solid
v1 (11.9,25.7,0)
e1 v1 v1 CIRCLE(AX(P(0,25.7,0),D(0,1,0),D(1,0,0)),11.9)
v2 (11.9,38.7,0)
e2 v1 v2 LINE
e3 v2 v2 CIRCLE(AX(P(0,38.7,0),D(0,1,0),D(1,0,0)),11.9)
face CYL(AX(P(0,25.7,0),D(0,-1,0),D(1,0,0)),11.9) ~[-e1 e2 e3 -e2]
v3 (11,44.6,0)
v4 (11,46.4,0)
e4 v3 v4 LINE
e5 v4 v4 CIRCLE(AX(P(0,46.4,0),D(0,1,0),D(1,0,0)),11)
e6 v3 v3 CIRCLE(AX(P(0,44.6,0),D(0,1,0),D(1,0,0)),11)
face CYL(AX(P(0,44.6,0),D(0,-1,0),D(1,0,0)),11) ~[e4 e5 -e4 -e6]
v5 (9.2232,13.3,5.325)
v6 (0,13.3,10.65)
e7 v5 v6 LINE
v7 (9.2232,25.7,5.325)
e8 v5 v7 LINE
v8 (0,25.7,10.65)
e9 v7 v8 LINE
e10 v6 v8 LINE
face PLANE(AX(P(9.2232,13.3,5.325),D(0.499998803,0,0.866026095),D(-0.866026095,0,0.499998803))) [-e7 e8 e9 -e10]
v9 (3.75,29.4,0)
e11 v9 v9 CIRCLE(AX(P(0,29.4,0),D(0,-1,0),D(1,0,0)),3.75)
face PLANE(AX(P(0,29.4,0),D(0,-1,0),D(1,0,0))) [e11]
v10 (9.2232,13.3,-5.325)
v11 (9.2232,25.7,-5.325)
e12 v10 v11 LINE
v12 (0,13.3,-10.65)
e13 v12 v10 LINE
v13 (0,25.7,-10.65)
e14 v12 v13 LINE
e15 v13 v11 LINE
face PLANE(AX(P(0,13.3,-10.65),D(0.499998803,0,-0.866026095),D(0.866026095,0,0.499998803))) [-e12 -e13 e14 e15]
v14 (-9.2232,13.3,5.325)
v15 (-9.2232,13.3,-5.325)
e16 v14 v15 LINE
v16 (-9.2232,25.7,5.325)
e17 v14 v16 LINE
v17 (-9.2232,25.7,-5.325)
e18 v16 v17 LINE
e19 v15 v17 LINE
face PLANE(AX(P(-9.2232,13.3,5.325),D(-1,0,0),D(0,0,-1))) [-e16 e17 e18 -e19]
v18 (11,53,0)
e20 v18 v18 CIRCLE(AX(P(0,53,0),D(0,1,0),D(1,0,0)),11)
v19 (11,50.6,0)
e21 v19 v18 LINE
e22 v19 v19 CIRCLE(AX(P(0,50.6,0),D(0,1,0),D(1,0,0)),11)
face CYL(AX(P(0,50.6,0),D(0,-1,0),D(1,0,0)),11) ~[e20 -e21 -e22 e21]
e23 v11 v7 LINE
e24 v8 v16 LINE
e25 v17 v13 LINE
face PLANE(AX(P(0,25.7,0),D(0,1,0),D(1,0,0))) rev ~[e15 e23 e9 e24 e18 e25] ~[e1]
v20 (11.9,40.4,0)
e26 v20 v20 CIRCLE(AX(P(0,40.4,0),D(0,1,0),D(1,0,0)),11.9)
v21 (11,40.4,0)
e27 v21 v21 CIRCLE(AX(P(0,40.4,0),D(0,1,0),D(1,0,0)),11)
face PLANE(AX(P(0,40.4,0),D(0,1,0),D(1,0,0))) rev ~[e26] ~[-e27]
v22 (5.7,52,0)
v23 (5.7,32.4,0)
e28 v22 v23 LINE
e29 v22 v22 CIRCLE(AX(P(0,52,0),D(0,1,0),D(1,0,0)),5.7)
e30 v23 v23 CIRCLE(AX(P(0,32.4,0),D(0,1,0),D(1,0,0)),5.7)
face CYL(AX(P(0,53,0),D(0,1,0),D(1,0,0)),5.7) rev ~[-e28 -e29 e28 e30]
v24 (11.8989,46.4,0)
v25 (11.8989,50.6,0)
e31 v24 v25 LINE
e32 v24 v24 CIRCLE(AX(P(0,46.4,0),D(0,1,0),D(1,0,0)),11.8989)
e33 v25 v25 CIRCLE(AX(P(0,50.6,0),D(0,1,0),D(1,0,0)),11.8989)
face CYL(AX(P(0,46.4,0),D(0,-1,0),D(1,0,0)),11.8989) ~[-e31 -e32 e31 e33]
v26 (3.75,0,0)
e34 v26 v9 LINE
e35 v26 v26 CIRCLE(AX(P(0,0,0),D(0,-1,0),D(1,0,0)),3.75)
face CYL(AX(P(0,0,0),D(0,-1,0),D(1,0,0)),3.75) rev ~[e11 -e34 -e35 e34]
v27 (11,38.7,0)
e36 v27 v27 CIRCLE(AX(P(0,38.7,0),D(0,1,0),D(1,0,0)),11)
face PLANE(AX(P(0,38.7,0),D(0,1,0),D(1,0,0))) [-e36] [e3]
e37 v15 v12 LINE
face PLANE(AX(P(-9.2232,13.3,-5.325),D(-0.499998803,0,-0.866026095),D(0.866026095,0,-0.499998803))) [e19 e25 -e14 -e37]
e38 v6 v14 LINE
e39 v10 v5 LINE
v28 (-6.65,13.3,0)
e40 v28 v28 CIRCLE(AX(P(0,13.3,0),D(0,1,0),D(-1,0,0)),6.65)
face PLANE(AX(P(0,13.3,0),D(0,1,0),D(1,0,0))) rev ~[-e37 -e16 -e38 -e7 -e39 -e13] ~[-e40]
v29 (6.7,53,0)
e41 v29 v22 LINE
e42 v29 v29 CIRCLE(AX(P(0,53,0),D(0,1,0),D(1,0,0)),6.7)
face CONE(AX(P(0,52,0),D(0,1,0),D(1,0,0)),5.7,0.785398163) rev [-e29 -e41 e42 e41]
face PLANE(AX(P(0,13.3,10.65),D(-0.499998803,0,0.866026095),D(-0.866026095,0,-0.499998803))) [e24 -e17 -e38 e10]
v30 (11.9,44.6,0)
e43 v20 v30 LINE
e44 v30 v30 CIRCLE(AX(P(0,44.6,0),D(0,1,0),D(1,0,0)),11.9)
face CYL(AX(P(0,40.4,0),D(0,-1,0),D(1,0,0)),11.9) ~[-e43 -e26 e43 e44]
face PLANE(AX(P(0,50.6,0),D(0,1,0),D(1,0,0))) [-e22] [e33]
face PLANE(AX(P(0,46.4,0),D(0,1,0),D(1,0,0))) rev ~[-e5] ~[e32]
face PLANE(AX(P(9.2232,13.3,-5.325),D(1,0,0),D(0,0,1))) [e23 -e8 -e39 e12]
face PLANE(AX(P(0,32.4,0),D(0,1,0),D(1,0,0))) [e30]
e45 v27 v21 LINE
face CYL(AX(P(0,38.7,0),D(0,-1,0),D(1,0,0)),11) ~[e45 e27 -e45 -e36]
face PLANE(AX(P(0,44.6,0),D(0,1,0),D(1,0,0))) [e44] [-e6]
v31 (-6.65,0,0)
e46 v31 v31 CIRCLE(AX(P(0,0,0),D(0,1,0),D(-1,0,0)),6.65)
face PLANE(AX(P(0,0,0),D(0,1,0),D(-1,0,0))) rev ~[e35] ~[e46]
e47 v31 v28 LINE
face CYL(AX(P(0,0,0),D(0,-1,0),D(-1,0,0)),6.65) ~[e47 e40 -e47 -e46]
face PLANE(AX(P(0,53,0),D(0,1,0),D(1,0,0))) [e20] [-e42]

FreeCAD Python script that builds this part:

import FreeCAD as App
import Part
import Sketcher
from FreeCAD import Vector
Q = App.Units.Quantity


def edges_at(feature, points):
    """Names of the edges that pass closest to the given points."""
    edges = feature.Shape.Edges
    near = lambda p: min(range(len(edges)), key=lambda i: edges[i].distToShape(Part.Vertex(*p))[0])
    return sorted({f"Edge{near(p) + 1}" for p in points})

doc = App.newDocument("Part")
body = doc.addObject("PartDesign::Body", "Body")

# Sketch on XZ plane
sketch1 = doc.addObject("Sketcher::SketchObject", "Sketch")
body.addObject(sketch1)
sketch1.AttachmentSupport = (doc.XZ_Plane, [""])
sketch1.MapMode = "FlatFace"
sketch1.addGeometry(Part.Circle(Vector(0, 0, 0), Vector(0, 0, 1), 7), False)
sketch1.addConstraint([
    Sketcher.Constraint("Coincident", 0, 3, -1, 1),
    Sketcher.Constraint("Diameter", 0, 13.3),
])
pad1 = doc.addObject("PartDesign::Pad", "Pad")
body.addObject(pad1)
pad1.Profile = sketch1
pad1.Length = 13.3
pad1.Reversed = True

# Sketch on XZ plane
sketch2 = doc.addObject("Sketcher::SketchObject", "Sketch001")
body.addObject(sketch2)
sketch2.AttachmentSupport = (doc.XZ_Plane, [""])
sketch2.MapMode = "FlatFace"
sketch2.AttachmentOffset = App.Placement(Vector(0, 0, -13.3), App.Rotation())
sketch2.addGeometry([
    Part.LineSegment(Vector(9, -5, 0), Vector(0, -11, 0)),  # 0
    Part.LineSegment(Vector(0, -11, 0), Vector(-9, -5, 0)),  # 1
    Part.LineSegment(Vector(-9, -5, 0), Vector(-9, 5, 0)),  # 2
    Part.LineSegment(Vector(-9, 5, 0), Vector(0, 11, 0)),  # 3
    Part.LineSegment(Vector(0, 11, 0), Vector(9, 5, 0)),  # 4
    Part.LineSegment(Vector(9, 5, 0), Vector(9, -5, 0)),  # 5
], False)
sketch2.addConstraint([
    Sketcher.Constraint("Coincident", 0, 2, 1, 1),
    Sketcher.Constraint("Coincident", 1, 2, 2, 1),
    Sketcher.Constraint("Coincident", 2, 2, 3, 1),
    Sketcher.Constraint("Coincident", 3, 2, 4, 1),
    Sketcher.Constraint("Coincident", 4, 2, 5, 1),
    Sketcher.Constraint("Coincident", 5, 2, 0, 1),
    Sketcher.Constraint("Vertical", 2),
    Sketcher.Constraint("Vertical", 5),
    Sketcher.Constraint("Symmetric", 0, 2, 3, 2, -1, 1),
    Sketcher.Constraint("Symmetric", 1, 2, 4, 2, -1, 1),
    Sketcher.Constraint("PointOnObject", 0, 2, -2),
    Sketcher.Constraint("Parallel", 0, 3),
    Sketcher.Constraint("Horizontal", 2, 2, 4, 2),
    Sketcher.Constraint("Angle", 0, Q("-150 deg")),
    Sketcher.Constraint("DistanceY", 2, 1, 2, 2, 10.65),
    Sketcher.Constraint("DistanceY", 0, 2, 3, 2, 21.3),
])
pad2 = doc.addObject("PartDesign::Pad", "Pad001")
body.addObject(pad2)
pad2.Profile = sketch2
pad2.Length = 12.4
pad2.Reversed = True

# Sketch on XZ plane
sketch3 = doc.addObject("Sketcher::SketchObject", "Sketch002")
body.addObject(sketch3)
sketch3.AttachmentSupport = (doc.XZ_Plane, [""])
sketch3.MapMode = "FlatFace"
sketch3.AttachmentOffset = App.Placement(Vector(0, 0, -25.7), App.Rotation())
sketch3.addGeometry(Part.Circle(Vector(0, 0, 0), Vector(0, 0, 1), 12), False)
sketch3.addConstraint([
    Sketcher.Constraint("Coincident", 0, 3, -1, 1),
    Sketcher.Constraint("Diameter", 0, 23.8),
])
pad3 = doc.addObject("PartDesign::Pad", "Pad002")
body.addObject(pad3)
pad3.Profile = sketch3
pad3.Length = 13
pad3.Reversed = True

# Sketch on XZ plane
sketch4 = doc.addObject("Sketcher::SketchObject", "Sketch003")
body.addObject(sketch4)
sketch4.AttachmentSupport = (doc.XZ_Plane, [""])
sketch4.MapMode = "FlatFace"
sketch4.AttachmentOffset = App.Placement(Vector(0, 0, -38.7), App.Rotation())
sketch4.addGeometry(Part.Circle(Vector(0, 0, 0), Vector(0, 0, 1), 11), False)
sketch4.addConstraint([
    Sketcher.Constraint("Coincident", 0, 3, -1, 1),
    Sketcher.Constraint("Diameter", 0, 22.0),
])
pad4 = doc.addObject("PartDesign::Pad", "Pad003")
body.addObject(pad4)
pad4.Profile = sketch4
pad4.Length = 1.7
pad4.Reversed = True

# Sketch on XZ plane
sketch5 = doc.addObject("Sketcher::SketchObject", "Sketch004")
body.addObject(sketch5)
sketch5.AttachmentSupport = (doc.XZ_Plane, [""])
sketch5.MapMode = "FlatFace"
sketch5.AttachmentOffset = App.Placement(Vector(0, 0, -40.4), App.Rotation())
sketch5.addGeometry(Part.Circle(Vector(0, 0, 0), Vector(0, 0, 1), 12), False)
sketch5.addConstraint([
    Sketcher.Constraint("Coincident", 0, 3, -1, 1),
    Sketcher.Constraint("Diameter", 0, 23.8),
])
pad5 = doc.addObject("PartDesign::Pad", "Pad004")
body.addObject(pad5)
pad5.Profile = sketch5
pad5.Length = 4.2
pad5.Reversed = True

# Sketch on XZ plane
sketch6 = doc.addObject("Sketcher::SketchObject", "Sketch005")
body.addObject(sketch6)
sketch6.AttachmentSupport = (doc.XZ_Plane, [""])
sketch6.MapMode = "FlatFace"
sketch6.AttachmentOffset = App.Placement(Vector(0, 0, -44.6), App.Rotation())
sketch6.addGeometry(Part.Circle(Vector(0, 0, 0), Vector(0, 0, 1), 11), False)
sketch6.addConstraint([
    Sketcher.Constraint("Coincident", 0, 3, -1, 1),
    Sketcher.Constraint("Diameter", 0, 22.0),
])
pad6 = doc.addObject("PartDesign::Pad", "Pad005")
body.addObject(pad6)
pad6.Profile = sketch6
pad6.Length = 1.8
pad6.Reversed = True

# Sketch on XZ plane
sketch7 = doc.addObject("Sketcher::SketchObject", "Sketch006")
body.addObject(sketch7)
sketch7.AttachmentSupport = (doc.XZ_Plane, [""])
sketch7.MapMode = "FlatFace"
sketch7.AttachmentOffset = App.Placement(Vector(0, 0, -46.4), App.Rotation())
sketch7.addGeometry(Part.Circle(Vector(0, 0, 0), Vector(0, 0, 1), 12), False)
sketch7.addConstraint([
    Sketcher.Constraint("Coincident", 0, 3, -1, 1),
    Sketcher.Constraint("Diameter", 0, 23.7978),
])
pad7 = doc.addObject("PartDesign::Pad", "Pad006")
body.addObject(pad7)
pad7.Profile = sketch7
pad7.Length = 4.2
pad7.Reversed = True

# Sketch on XZ plane
sketch8 = doc.addObject("Sketcher::SketchObject", "Sketch007")
body.addObject(sketch8)
sketch8.AttachmentSupport = (doc.XZ_Plane, [""])
sketch8.MapMode = "FlatFace"
sketch8.AttachmentOffset = App.Placement(Vector(0, 0, -50.6), App.Rotation())
sketch8.addGeometry(Part.Circle(Vector(0, 0, 0), Vector(0, 0, 1), 11), False)
sketch8.addConstraint([
    Sketcher.Constraint("Coincident", 0, 3, -1, 1),
    Sketcher.Constraint("Diameter", 0, 22.0),
])
pad8 = doc.addObject("PartDesign::Pad", "Pad007")
body.addObject(pad8)
pad8.Profile = sketch8
pad8.Length = 2.4
pad8.Reversed = True

# Sketch on XZ plane
sketch9 = doc.addObject("Sketcher::SketchObject", "Sketch008")
body.addObject(sketch9)
sketch9.AttachmentSupport = (doc.XZ_Plane, [""])
sketch9.MapMode = "FlatFace"
sketch9.AttachmentOffset = App.Placement(Vector(0, 0, -53), App.Rotation())
sketch9.addGeometry(Part.Circle(Vector(0, 0, 0), Vector(0, 0, 1), 6), False)
sketch9.addConstraint([
    Sketcher.Constraint("Coincident", 0, 3, -1, 1),
    Sketcher.Constraint("Diameter", 0, 11.4),
])
pocket1 = doc.addObject("PartDesign::Pocket", "Pocket")
body.addObject(pocket1)
pocket1.Profile = sketch9
pocket1.Length = 20.6
pocket1.Reversed = True
doc.recompute()

chamfer = doc.addObject("PartDesign::Chamfer", "Chamfer")
body.addObject(chamfer)
chamfer.Base = (pocket1, edges_at(pocket1, [(-5.7, 53, 0)]))
chamfer.Size = 1

# Sketch on XZ plane
sketch10 = doc.addObject("Sketcher::SketchObject", "Sketch009")
body.addObject(sketch10)
sketch10.AttachmentSupport = (doc.XZ_Plane, [""])
sketch10.MapMode = "FlatFace"
sketch10.addGeometry(Part.Circle(Vector(0, 0, 0), Vector(0, 0, 1), 3.8), False)
sketch10.addConstraint([
    Sketcher.Constraint("Coincident", 0, 3, -1, 1),
    Sketcher.Constraint("Diameter", 0, 7.5),
])
pocket2 = doc.addObject("PartDesign::Pocket", "Pocket001")
body.addObject(pocket2)
pocket2.Profile = sketch10
pocket2.Length = 29.4

doc.recompute()
